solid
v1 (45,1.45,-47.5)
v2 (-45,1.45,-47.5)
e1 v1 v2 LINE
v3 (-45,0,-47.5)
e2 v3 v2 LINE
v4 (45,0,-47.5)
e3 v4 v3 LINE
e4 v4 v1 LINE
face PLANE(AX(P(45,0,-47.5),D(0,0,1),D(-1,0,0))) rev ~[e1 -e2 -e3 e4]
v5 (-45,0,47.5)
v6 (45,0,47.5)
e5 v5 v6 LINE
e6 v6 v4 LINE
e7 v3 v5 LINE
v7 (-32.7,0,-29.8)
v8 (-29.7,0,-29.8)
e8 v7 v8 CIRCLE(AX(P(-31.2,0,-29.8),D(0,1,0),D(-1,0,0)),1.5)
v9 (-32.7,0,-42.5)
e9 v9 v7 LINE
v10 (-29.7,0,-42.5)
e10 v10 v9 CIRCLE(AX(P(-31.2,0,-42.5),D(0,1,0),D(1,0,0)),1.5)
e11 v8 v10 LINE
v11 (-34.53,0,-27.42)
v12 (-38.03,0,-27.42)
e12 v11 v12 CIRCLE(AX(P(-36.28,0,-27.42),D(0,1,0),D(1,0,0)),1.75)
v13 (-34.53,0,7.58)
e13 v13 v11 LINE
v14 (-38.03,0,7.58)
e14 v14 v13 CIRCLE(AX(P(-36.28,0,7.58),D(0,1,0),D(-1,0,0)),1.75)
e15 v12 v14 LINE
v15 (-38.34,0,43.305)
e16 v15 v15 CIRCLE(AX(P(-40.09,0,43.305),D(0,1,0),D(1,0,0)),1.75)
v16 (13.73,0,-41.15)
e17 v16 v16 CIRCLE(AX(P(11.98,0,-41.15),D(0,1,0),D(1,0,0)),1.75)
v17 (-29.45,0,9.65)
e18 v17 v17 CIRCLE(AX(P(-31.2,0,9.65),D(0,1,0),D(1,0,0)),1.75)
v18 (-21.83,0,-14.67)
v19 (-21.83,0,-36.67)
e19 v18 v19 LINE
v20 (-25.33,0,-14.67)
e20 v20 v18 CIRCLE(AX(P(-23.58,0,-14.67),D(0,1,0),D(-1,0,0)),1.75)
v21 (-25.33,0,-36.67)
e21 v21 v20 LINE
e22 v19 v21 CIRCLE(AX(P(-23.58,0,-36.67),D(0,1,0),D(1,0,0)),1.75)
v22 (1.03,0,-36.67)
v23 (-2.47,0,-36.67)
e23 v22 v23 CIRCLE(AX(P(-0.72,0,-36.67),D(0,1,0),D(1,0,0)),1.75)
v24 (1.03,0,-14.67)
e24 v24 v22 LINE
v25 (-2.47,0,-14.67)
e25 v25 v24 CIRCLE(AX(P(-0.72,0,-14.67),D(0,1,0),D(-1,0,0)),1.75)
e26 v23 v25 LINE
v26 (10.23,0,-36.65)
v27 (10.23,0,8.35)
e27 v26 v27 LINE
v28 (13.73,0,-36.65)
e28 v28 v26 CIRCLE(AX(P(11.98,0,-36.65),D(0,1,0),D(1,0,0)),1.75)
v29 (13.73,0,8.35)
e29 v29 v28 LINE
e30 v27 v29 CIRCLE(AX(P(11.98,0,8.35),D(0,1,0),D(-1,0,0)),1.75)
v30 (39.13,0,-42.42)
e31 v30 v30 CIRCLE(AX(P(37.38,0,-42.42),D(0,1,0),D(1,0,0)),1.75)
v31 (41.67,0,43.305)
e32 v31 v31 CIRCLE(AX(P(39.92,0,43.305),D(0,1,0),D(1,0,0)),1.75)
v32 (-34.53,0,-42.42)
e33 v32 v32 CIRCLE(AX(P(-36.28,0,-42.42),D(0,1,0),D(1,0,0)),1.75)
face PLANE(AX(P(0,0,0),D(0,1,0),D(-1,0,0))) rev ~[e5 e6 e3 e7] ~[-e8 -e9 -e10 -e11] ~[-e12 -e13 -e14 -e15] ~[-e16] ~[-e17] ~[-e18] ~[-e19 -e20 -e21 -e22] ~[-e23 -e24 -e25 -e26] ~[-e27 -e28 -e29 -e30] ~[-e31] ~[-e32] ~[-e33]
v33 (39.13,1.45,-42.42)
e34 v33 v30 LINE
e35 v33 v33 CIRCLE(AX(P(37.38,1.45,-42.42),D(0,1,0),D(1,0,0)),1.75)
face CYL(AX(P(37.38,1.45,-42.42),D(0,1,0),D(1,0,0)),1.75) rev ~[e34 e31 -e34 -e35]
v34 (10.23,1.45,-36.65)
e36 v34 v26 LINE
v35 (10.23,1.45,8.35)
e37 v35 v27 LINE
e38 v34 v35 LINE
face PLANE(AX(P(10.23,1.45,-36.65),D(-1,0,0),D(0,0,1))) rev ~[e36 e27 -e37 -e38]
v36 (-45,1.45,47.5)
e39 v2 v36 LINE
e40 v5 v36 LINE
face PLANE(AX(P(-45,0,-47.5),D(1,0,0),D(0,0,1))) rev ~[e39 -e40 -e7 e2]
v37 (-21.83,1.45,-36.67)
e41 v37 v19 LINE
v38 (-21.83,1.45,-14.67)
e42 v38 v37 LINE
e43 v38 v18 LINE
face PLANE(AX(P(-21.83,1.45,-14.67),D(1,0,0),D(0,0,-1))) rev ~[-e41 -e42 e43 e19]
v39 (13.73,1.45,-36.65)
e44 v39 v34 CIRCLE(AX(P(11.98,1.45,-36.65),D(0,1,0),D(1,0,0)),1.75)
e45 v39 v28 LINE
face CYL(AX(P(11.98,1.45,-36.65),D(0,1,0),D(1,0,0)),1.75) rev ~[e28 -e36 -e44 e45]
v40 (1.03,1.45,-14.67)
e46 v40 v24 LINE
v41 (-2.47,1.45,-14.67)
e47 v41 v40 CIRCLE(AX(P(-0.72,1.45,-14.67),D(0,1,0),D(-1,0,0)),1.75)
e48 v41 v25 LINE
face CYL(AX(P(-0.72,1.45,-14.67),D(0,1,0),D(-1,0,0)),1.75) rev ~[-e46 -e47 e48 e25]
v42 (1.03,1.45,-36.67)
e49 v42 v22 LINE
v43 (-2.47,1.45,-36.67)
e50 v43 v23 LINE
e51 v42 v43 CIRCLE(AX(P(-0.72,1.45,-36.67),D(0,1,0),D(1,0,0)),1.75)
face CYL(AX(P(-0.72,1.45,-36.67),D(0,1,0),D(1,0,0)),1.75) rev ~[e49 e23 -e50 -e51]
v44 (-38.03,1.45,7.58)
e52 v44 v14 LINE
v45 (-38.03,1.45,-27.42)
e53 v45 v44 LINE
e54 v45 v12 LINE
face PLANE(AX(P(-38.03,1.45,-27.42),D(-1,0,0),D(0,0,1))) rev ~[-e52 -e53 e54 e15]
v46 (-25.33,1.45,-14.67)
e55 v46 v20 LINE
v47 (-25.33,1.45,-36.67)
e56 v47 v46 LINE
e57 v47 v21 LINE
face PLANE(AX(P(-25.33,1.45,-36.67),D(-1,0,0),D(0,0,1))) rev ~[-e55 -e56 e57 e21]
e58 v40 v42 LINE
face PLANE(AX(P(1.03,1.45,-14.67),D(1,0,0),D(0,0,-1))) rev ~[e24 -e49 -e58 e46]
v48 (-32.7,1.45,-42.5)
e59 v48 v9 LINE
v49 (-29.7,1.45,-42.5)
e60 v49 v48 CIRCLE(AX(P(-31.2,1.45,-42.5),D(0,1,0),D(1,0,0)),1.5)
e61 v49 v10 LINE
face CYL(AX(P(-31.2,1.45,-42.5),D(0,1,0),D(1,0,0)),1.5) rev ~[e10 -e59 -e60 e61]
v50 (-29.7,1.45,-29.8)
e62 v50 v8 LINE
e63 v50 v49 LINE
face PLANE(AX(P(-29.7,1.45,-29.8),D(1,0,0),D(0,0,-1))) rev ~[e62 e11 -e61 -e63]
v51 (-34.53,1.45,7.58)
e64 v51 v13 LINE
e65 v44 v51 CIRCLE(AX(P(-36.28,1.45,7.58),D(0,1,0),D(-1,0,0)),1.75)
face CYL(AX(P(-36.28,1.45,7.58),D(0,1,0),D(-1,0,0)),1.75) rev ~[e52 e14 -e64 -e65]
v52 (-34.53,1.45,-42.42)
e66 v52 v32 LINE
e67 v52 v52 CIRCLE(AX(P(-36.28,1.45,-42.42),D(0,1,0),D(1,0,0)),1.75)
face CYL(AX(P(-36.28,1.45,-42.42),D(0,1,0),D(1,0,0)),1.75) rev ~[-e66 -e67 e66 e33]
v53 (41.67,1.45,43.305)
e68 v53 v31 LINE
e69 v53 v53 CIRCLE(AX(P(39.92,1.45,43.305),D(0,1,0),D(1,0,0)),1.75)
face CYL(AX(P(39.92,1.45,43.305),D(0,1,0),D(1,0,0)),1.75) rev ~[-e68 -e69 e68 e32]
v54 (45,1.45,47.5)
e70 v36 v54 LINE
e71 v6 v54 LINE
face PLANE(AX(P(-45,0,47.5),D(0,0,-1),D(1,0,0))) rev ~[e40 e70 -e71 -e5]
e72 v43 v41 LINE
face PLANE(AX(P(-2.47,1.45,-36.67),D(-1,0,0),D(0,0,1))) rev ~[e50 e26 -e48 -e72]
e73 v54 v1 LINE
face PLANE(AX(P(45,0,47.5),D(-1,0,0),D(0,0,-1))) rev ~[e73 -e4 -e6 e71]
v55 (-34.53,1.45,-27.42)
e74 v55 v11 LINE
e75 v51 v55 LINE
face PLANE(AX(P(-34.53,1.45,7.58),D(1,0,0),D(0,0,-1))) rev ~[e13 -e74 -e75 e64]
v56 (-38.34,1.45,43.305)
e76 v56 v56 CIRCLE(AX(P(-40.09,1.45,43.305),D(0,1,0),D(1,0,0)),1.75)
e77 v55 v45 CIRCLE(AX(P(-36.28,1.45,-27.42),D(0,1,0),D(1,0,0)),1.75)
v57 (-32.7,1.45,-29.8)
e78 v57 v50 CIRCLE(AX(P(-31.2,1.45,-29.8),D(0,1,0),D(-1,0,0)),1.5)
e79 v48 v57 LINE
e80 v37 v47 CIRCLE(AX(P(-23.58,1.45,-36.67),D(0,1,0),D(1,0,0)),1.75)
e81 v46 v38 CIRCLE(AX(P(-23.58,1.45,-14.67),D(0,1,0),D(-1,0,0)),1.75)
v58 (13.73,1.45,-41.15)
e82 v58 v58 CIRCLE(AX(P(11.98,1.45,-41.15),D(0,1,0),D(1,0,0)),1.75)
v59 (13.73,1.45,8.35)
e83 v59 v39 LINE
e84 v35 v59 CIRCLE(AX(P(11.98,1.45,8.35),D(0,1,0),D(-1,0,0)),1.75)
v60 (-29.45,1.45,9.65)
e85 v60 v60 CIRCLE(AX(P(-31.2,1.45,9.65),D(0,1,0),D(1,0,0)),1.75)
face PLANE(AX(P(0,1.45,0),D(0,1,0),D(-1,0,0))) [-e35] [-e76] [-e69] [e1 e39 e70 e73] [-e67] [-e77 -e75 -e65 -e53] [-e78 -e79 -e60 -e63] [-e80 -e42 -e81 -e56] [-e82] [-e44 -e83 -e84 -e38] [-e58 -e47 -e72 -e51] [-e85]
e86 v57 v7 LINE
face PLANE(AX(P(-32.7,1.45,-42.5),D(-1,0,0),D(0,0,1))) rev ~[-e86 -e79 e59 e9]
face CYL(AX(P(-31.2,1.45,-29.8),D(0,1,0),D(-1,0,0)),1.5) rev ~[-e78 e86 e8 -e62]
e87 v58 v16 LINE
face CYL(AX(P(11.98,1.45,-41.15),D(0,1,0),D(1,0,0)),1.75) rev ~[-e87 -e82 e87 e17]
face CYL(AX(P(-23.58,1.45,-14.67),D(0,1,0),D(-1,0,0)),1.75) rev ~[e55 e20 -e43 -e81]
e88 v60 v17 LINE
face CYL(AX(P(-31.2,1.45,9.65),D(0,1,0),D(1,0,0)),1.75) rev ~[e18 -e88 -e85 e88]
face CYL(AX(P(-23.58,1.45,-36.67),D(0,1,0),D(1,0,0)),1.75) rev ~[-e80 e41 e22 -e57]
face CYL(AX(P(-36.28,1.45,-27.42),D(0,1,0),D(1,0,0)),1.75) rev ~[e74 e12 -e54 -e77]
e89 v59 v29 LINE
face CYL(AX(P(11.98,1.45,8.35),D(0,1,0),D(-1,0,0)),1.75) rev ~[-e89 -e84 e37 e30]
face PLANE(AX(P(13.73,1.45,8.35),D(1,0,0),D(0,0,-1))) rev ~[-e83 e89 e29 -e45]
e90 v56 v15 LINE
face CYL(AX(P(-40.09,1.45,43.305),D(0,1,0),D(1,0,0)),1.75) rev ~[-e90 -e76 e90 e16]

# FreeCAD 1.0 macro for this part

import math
import FreeCAD as App
import Part
import Sketcher

doc = App.newDocument("Part")
params = doc.addObject("Spreadsheet::Sheet", "Params")
for row, (alias, value) in enumerate([
    ("sketch1_width", "90 mm"),
    ("sketch1_height", "95 mm"),
    ("pad1_length", "1.45 mm"),
    ("sketch2_diameter", "3.5 mm"),
    ("sketch3_diameter", "3.5 mm"),
    ("pocket2_length", "10 mm"),
    ("sketch4_radius", "1.5 mm"),
    ("sketch4_height", "35 mm"),
    ("sketch4_height2", "45 mm"),
    ("sketch4_height3", "22 mm"),
    ("sketch4_radius2", "1.75 mm"),
    ("pocket3_length", "10 mm"),
], start=1):
    params.set(f"A{row}", alias)
    params.set(f"B{row}", "=" + value)
    params.setAlias(f"B{row}", alias)

body = doc.addObject("PartDesign::Body", "Body")

# Sketch on XZ plane
sketch1 = body.newObject("Sketcher::SketchObject", "Sketch")
sketch1.AttachmentSupport = (doc.getObject("XZ_Plane"), [""])
sketch1.MapMode = "FlatFace"
sketch1.addGeometry(Part.LineSegment(App.Vector(-45, -48, 0), App.Vector(-45, 48, 0)), False)
sketch1.addGeometry(Part.LineSegment(App.Vector(-45, 48, 0), App.Vector(45, 48, 0)), False)
sketch1.addGeometry(Part.LineSegment(App.Vector(45, 48, 0), App.Vector(45, -48, 0)), False)
sketch1.addGeometry(Part.LineSegment(App.Vector(45, -48, 0), App.Vector(-45, -48, 0)), False)
sketch1.addConstraint(Sketcher.Constraint("Coincident", 0, 2, 1, 1))
sketch1.addConstraint(Sketcher.Constraint("Coincident", 1, 2, 2, 1))
sketch1.addConstraint(Sketcher.Constraint("Coincident", 2, 2, 3, 1))
sketch1.addConstraint(Sketcher.Constraint("Coincident", 3, 2, 0, 1))
sketch1.addConstraint(Sketcher.Constraint("Vertical", 0))
sketch1.addConstraint(Sketcher.Constraint("Horizontal", 1))
sketch1.addConstraint(Sketcher.Constraint("Vertical", 2))
sketch1.addConstraint(Sketcher.Constraint("Horizontal", 3))
sketch1.addConstraint(Sketcher.Constraint("Symmetric", 0, 2, 2, 2, -1, 1))
sketch1.addConstraint(Sketcher.Constraint("DistanceX", 1, 1, 1, 2, 90.0))
sketch1.addConstraint(Sketcher.Constraint("DistanceY", 0, 1, 0, 2, 95.0))
sketch1.setExpression("Constraints[9]", "Params.sketch1_width")
sketch1.setExpression("Constraints[10]", "Params.sketch1_height")
pad1 = body.newObject("PartDesign::Pad", "Pad")
pad1.Profile = sketch1
pad1.setExpression("Length", "Params.pad1_length")
pad1.Reversed = True

# Sketch on XZ plane
sketch2 = body.newObject("Sketcher::SketchObject", "Sketch001")
sketch2.AttachmentSupport = (doc.getObject("XZ_Plane"), [""])
sketch2.MapMode = "FlatFace"
sketch2.AttachmentOffset = App.Placement(App.Vector(0, 0, -1.45), App.Rotation())
sketch2.addGeometry(Part.Circle(App.Vector(37.4, -42.4, 0), App.Vector(0, 0, 1), 1.8), False)
sketch2.addGeometry(Part.Circle(App.Vector(-40.1, 43.3, 0), App.Vector(0, 0, 1), 1.8), False)
sketch2.addGeometry(Part.Circle(App.Vector(39.9, 43.3, 0), App.Vector(0, 0, 1), 1.8), False)
sketch2.addGeometry(Part.Circle(App.Vector(-36.3, -42.4, 0), App.Vector(0, 0, 1), 1.8), False)
sketch2.addConstraint(Sketcher.Constraint("Equal", 0, 1))
sketch2.addConstraint(Sketcher.Constraint("Equal", 1, 2))
sketch2.addConstraint(Sketcher.Constraint("Equal", 2, 3))
sketch2.addConstraint(Sketcher.Constraint("Horizontal", 1, 3, 2, 3))
sketch2.addConstraint(Sketcher.Constraint("Horizontal", 0, 3, 3, 3))
sketch2.addConstraint(Sketcher.Constraint("Diameter", 0, 3.5))
sketch2.addConstraint(Sketcher.Constraint("DistanceX", 1, 3, 2, 3, 80.01))
sketch2.addConstraint(Sketcher.Constraint("DistanceX", 0, 3, 2, 3, 2.54))
sketch2.addConstraint(Sketcher.Constraint("DistanceX", 3, 3, 0, 3, 73.66))
sketch2.addConstraint(Sketcher.Constraint("DistanceY", 0, 3, 1, 3, 85.725))
sketch2.addConstraint(Sketcher.Constraint("DistanceX", -1, 1, 0, 3, 37.38))
sketch2.addConstraint(Sketcher.Constraint("DistanceY", 0, 3, -1, 1, 42.42))
sketch2.setExpression("Constraints[5]", "Params.sketch2_diameter")
pocket1 = body.newObject("PartDesign::Pocket", "Pocket")
pocket1.Profile = sketch2
pocket1.Type = "ThroughAll"
pocket1.Reversed = True

# Sketch on XZ plane
sketch3 = body.newObject("Sketcher::SketchObject", "Sketch002")
sketch3.AttachmentSupport = (doc.getObject("XZ_Plane"), [""])
sketch3.MapMode = "FlatFace"
sketch3.AttachmentOffset = App.Placement(App.Vector(0, 0, -1.45), App.Rotation())
sketch3.addGeometry(Part.Circle(App.Vector(-36.3, -42.4, 0), App.Vector(0, 0, 1), 1.8), False)
sketch3.addGeometry(Part.Circle(App.Vector(12, -41.1, 0), App.Vector(0, 0, 1), 1.8), False)
sketch3.addGeometry(Part.Circle(App.Vector(-31.2, 9.7, 0), App.Vector(0, 0, 1), 1.8), False)
sketch3.addConstraint(Sketcher.Constraint("Equal", 0, 1))
sketch3.addConstraint(Sketcher.Constraint("Equal", 1, 2))
sketch3.addConstraint(Sketcher.Constraint("Diameter", 0, 3.5))
sketch3.addConstraint(Sketcher.Constraint("DistanceX", 0, 3, 1, 3, 48.26))
sketch3.addConstraint(Sketcher.Constraint("DistanceY", 0, 3, 1, 3, 1.27))
sketch3.addConstraint(Sketcher.Constraint("DistanceX", 0, 3, 2, 3, 5.08))
sketch3.addConstraint(Sketcher.Constraint("DistanceY", 0, 3, 2, 3, 52.07))
sketch3.addConstraint(Sketcher.Constraint("DistanceX", 2, 3, -1, 1, 31.2))
sketch3.addConstraint(Sketcher.Constraint("DistanceY", 0, 3, -1, 1, 42.42))
sketch3.setExpression("Constraints[2]", "Params.sketch3_diameter")
pocket2 = body.newObject("PartDesign::Pocket", "Pocket001")
pocket2.Profile = sketch3
pocket2.setExpression("Length", "Params.pocket2_length")
pocket2.Reversed = True

# Sketch on XZ plane
sketch4 = body.newObject("Sketcher::SketchObject", "Sketch003")
sketch4.AttachmentSupport = (doc.getObject("XZ_Plane"), [""])
sketch4.MapMode = "FlatFace"
sketch4.AttachmentOffset = App.Placement(App.Vector(0, 0, -1.45), App.Rotation())
sketch4.addGeometry(Part.ArcOfCircle(Part.Circle(App.Vector(-36.3, -27.4, 0), App.Vector(0, 0, 1), 1.8), math.radians(180), math.radians(360)), False)
sketch4.addGeometry(Part.LineSegment(App.Vector(-38, -27.4, 0), App.Vector(-38, 7.6, 0)), False)
sketch4.addGeometry(Part.ArcOfCircle(Part.Circle(App.Vector(-36.3, 7.6, 0), App.Vector(0, 0, 1), 1.8), math.radians(0), math.radians(180)), False)
sketch4.addGeometry(Part.LineSegment(App.Vector(-34.5, 7.6, 0), App.Vector(-34.5, -27.4, 0)), False)
sketch4.addGeometry(Part.ArcOfCircle(Part.Circle(App.Vector(12, -36.6, 0), App.Vector(0, 0, 1), 1.8), math.radians(180), math.radians(360)), False)
sketch4.addGeometry(Part.LineSegment(App.Vector(10.2, -36.6, 0), App.Vector(10.2, 8.3, 0)), False)
sketch4.addGeometry(Part.ArcOfCircle(Part.Circle(App.Vector(12, 8.3, 0), App.Vector(0, 0, 1), 1.8), math.radians(0), math.radians(180)), False)
sketch4.addGeometry(Part.LineSegment(App.Vector(13.7, 8.3, 0), App.Vector(13.7, -36.6, 0)), False)
sketch4.addGeometry(Part.ArcOfCircle(Part.Circle(App.Vector(-23.6, -36.7, 0), App.Vector(0, 0, 1), 1.8), math.radians(180), math.radians(360)), False)
sketch4.addGeometry(Part.LineSegment(App.Vector(-25.3, -36.7, 0), App.Vector(-25.3, -14.7, 0)), False)
sketch4.addGeometry(Part.ArcOfCircle(Part.Circle(App.Vector(-23.6, -14.7, 0), App.Vector(0, 0, 1), 1.8), math.radians(0), math.radians(180)), False)
sketch4.addGeometry(Part.LineSegment(App.Vector(-21.8, -14.7, 0), App.Vector(-21.8, -36.7, 0)), False)
sketch4.addGeometry(Part.ArcOfCircle(Part.Circle(App.Vector(-0.7, -36.7, 0), App.Vector(0, 0, 1), 1.8), math.radians(180), math.radians(360)), False)
sketch4.addGeometry(Part.LineSegment(App.Vector(-2.5, -36.7, 0), App.Vector(-2.5, -14.7, 0)), False)
sketch4.addGeometry(Part.ArcOfCircle(Part.Circle(App.Vector(-0.7, -14.7, 0), App.Vector(0, 0, 1), 1.8), math.radians(0), math.radians(180)), False)
sketch4.addGeometry(Part.LineSegment(App.Vector(1, -14.7, 0), App.Vector(1, -36.7, 0)), False)
sketch4.addGeometry(Part.ArcOfCircle(Part.Circle(App.Vector(-31.2, -42.5, 0), App.Vector(0, 0, 1), 1.5), math.radians(180), math.radians(360)), False)
sketch4.addGeometry(Part.LineSegment(App.Vector(-32.7, -42.5, 0), App.Vector(-32.7, -29.8, 0)), False)
sketch4.addGeometry(Part.ArcOfCircle(Part.Circle(App.Vector(-31.2, -29.8, 0), App.Vector(0, 0, 1), 1.5), math.radians(0), math.radians(180)), False)
sketch4.addGeometry(Part.LineSegment(App.Vector(-29.7, -29.8, 0), App.Vector(-29.7, -42.5, 0)), False)
sketch4.addConstraint(Sketcher.Constraint("Tangent", 0, 1, 1, 1))
sketch4.addConstraint(Sketcher.Constraint("Tangent", 1, 2, 2, 2))
sketch4.addConstraint(Sketcher.Constraint("Tangent", 2, 1, 3, 1))
sketch4.addConstraint(Sketcher.Constraint("Tangent", 3, 2, 0, 2))
sketch4.addConstraint(Sketcher.Constraint("Tangent", 4, 1, 5, 1))
sketch4.addConstraint(Sketcher.Constraint("Tangent", 5, 2, 6, 2))
sketch4.addConstraint(Sketcher.Constraint("Tangent", 6, 1, 7, 1))
sketch4.addConstraint(Sketcher.Constraint("Tangent", 7, 2, 4, 2))
sketch4.addConstraint(Sketcher.Constraint("Tangent", 8, 1, 9, 1))
sketch4.addConstraint(Sketcher.Constraint("Tangent", 9, 2, 10, 2))
sketch4.addConstraint(Sketcher.Constraint("Tangent", 10, 1, 11, 1))
sketch4.addConstraint(Sketcher.Constraint("Tangent", 11, 2, 8, 2))
sketch4.addConstraint(Sketcher.Constraint("Tangent", 12, 1, 13, 1))
sketch4.addConstraint(Sketcher.Constraint("Tangent", 13, 2, 14, 2))
sketch4.addConstraint(Sketcher.Constraint("Tangent", 14, 1, 15, 1))
sketch4.addConstraint(Sketcher.Constraint("Tangent", 15, 2, 12, 2))
sketch4.addConstraint(Sketcher.Constraint("Tangent", 16, 1, 17, 1))
sketch4.addConstraint(Sketcher.Constraint("Tangent", 17, 2, 18, 2))
sketch4.addConstraint(Sketcher.Constraint("Tangent", 18, 1, 19, 1))
sketch4.addConstraint(Sketcher.Constraint("Tangent", 19, 2, 16, 2))
sketch4.addConstraint(Sketcher.Constraint("Vertical", 1))
sketch4.addConstraint(Sketcher.Constraint("Vertical", 3))
sketch4.addConstraint(Sketcher.Constraint("Vertical", 5))
sketch4.addConstraint(Sketcher.Constraint("Vertical", 7))
sketch4.addConstraint(Sketcher.Constraint("Vertical", 9))
sketch4.addConstraint(Sketcher.Constraint("Vertical", 11))
sketch4.addConstraint(Sketcher.Constraint("Vertical", 13))
sketch4.addConstraint(Sketcher.Constraint("Vertical", 15))
sketch4.addConstraint(Sketcher.Constraint("Vertical", 17))
sketch4.addConstraint(Sketcher.Constraint("Vertical", 19))
sketch4.addConstraint(Sketcher.Constraint("Equal", 2, 4))
sketch4.addConstraint(Sketcher.Constraint("Equal", 6, 8))
sketch4.addConstraint(Sketcher.Constraint("Equal", 10, 12))
sketch4.addConstraint(Sketcher.Constraint("Horizontal", 8, 3, 12, 3))
sketch4.addConstraint(Sketcher.Constraint("Horizontal", 10, 3, 14, 3))
sketch4.addConstraint(Sketcher.Constraint("Radius", 16, 1.5))
sketch4.addConstraint(Sketcher.Constraint("DistanceY", 1, 1, 1, 2, 35.0))
sketch4.addConstraint(Sketcher.Constraint("DistanceY", 5, 1, 5, 2, 45.0))
sketch4.addConstraint(Sketcher.Constraint("DistanceY", 9, 1, 9, 2, 22.0))
sketch4.addConstraint(Sketcher.Constraint("Radius", 0, 1.75))
sketch4.addConstraint(Sketcher.Constraint("DistanceY", 17, 1, 17, 2, 12.7))
sketch4.addConstraint(Sketcher.Constraint("DistanceX", 0, 3, 8, 3, 12.7))
sketch4.addConstraint(Sketcher.Constraint("DistanceX", 12, 3, 4, 3, 12.7))
sketch4.addConstraint(Sketcher.Constraint("DistanceX", 8, 3, 4, 3, 35.56))
sketch4.addConstraint(Sketcher.Constraint("DistanceX", 0, 3, 16, 3, 5.08))
sketch4.addConstraint(Sketcher.Constraint("DistanceX", 16, 3, -1, 1, 31.2))
sketch4.addConstraint(Sketcher.Constraint("DistanceY", 16, 3, -1, 1, 42.5))
sketch4.addConstraint(Sketcher.Constraint("DistanceY", 0, 3, -1, 1, 27.42))
sketch4.addConstraint(Sketcher.Constraint("DistanceY", 4, 3, -1, 1, 36.65))
sketch4.addConstraint(Sketcher.Constraint("DistanceY", 8, 3, -1, 1, 36.67))
sketch4.setExpression("Constraints[35]", "Params.sketch4_radius")
sketch4.setExpression("Constraints[36]", "Params.sketch4_height")
sketch4.setExpression("Constraints[37]", "Params.sketch4_height2")
sketch4.setExpression("Constraints[38]", "Params.sketch4_height3")
sketch4.setExpression("Constraints[39]", "Params.sketch4_radius2")
pocket3 = body.newObject("PartDesign::Pocket", "Pocket002")
pocket3.Profile = sketch4
pocket3.setExpression("Length", "Params.pocket3_length")
pocket3.Reversed = True

doc.recompute()
